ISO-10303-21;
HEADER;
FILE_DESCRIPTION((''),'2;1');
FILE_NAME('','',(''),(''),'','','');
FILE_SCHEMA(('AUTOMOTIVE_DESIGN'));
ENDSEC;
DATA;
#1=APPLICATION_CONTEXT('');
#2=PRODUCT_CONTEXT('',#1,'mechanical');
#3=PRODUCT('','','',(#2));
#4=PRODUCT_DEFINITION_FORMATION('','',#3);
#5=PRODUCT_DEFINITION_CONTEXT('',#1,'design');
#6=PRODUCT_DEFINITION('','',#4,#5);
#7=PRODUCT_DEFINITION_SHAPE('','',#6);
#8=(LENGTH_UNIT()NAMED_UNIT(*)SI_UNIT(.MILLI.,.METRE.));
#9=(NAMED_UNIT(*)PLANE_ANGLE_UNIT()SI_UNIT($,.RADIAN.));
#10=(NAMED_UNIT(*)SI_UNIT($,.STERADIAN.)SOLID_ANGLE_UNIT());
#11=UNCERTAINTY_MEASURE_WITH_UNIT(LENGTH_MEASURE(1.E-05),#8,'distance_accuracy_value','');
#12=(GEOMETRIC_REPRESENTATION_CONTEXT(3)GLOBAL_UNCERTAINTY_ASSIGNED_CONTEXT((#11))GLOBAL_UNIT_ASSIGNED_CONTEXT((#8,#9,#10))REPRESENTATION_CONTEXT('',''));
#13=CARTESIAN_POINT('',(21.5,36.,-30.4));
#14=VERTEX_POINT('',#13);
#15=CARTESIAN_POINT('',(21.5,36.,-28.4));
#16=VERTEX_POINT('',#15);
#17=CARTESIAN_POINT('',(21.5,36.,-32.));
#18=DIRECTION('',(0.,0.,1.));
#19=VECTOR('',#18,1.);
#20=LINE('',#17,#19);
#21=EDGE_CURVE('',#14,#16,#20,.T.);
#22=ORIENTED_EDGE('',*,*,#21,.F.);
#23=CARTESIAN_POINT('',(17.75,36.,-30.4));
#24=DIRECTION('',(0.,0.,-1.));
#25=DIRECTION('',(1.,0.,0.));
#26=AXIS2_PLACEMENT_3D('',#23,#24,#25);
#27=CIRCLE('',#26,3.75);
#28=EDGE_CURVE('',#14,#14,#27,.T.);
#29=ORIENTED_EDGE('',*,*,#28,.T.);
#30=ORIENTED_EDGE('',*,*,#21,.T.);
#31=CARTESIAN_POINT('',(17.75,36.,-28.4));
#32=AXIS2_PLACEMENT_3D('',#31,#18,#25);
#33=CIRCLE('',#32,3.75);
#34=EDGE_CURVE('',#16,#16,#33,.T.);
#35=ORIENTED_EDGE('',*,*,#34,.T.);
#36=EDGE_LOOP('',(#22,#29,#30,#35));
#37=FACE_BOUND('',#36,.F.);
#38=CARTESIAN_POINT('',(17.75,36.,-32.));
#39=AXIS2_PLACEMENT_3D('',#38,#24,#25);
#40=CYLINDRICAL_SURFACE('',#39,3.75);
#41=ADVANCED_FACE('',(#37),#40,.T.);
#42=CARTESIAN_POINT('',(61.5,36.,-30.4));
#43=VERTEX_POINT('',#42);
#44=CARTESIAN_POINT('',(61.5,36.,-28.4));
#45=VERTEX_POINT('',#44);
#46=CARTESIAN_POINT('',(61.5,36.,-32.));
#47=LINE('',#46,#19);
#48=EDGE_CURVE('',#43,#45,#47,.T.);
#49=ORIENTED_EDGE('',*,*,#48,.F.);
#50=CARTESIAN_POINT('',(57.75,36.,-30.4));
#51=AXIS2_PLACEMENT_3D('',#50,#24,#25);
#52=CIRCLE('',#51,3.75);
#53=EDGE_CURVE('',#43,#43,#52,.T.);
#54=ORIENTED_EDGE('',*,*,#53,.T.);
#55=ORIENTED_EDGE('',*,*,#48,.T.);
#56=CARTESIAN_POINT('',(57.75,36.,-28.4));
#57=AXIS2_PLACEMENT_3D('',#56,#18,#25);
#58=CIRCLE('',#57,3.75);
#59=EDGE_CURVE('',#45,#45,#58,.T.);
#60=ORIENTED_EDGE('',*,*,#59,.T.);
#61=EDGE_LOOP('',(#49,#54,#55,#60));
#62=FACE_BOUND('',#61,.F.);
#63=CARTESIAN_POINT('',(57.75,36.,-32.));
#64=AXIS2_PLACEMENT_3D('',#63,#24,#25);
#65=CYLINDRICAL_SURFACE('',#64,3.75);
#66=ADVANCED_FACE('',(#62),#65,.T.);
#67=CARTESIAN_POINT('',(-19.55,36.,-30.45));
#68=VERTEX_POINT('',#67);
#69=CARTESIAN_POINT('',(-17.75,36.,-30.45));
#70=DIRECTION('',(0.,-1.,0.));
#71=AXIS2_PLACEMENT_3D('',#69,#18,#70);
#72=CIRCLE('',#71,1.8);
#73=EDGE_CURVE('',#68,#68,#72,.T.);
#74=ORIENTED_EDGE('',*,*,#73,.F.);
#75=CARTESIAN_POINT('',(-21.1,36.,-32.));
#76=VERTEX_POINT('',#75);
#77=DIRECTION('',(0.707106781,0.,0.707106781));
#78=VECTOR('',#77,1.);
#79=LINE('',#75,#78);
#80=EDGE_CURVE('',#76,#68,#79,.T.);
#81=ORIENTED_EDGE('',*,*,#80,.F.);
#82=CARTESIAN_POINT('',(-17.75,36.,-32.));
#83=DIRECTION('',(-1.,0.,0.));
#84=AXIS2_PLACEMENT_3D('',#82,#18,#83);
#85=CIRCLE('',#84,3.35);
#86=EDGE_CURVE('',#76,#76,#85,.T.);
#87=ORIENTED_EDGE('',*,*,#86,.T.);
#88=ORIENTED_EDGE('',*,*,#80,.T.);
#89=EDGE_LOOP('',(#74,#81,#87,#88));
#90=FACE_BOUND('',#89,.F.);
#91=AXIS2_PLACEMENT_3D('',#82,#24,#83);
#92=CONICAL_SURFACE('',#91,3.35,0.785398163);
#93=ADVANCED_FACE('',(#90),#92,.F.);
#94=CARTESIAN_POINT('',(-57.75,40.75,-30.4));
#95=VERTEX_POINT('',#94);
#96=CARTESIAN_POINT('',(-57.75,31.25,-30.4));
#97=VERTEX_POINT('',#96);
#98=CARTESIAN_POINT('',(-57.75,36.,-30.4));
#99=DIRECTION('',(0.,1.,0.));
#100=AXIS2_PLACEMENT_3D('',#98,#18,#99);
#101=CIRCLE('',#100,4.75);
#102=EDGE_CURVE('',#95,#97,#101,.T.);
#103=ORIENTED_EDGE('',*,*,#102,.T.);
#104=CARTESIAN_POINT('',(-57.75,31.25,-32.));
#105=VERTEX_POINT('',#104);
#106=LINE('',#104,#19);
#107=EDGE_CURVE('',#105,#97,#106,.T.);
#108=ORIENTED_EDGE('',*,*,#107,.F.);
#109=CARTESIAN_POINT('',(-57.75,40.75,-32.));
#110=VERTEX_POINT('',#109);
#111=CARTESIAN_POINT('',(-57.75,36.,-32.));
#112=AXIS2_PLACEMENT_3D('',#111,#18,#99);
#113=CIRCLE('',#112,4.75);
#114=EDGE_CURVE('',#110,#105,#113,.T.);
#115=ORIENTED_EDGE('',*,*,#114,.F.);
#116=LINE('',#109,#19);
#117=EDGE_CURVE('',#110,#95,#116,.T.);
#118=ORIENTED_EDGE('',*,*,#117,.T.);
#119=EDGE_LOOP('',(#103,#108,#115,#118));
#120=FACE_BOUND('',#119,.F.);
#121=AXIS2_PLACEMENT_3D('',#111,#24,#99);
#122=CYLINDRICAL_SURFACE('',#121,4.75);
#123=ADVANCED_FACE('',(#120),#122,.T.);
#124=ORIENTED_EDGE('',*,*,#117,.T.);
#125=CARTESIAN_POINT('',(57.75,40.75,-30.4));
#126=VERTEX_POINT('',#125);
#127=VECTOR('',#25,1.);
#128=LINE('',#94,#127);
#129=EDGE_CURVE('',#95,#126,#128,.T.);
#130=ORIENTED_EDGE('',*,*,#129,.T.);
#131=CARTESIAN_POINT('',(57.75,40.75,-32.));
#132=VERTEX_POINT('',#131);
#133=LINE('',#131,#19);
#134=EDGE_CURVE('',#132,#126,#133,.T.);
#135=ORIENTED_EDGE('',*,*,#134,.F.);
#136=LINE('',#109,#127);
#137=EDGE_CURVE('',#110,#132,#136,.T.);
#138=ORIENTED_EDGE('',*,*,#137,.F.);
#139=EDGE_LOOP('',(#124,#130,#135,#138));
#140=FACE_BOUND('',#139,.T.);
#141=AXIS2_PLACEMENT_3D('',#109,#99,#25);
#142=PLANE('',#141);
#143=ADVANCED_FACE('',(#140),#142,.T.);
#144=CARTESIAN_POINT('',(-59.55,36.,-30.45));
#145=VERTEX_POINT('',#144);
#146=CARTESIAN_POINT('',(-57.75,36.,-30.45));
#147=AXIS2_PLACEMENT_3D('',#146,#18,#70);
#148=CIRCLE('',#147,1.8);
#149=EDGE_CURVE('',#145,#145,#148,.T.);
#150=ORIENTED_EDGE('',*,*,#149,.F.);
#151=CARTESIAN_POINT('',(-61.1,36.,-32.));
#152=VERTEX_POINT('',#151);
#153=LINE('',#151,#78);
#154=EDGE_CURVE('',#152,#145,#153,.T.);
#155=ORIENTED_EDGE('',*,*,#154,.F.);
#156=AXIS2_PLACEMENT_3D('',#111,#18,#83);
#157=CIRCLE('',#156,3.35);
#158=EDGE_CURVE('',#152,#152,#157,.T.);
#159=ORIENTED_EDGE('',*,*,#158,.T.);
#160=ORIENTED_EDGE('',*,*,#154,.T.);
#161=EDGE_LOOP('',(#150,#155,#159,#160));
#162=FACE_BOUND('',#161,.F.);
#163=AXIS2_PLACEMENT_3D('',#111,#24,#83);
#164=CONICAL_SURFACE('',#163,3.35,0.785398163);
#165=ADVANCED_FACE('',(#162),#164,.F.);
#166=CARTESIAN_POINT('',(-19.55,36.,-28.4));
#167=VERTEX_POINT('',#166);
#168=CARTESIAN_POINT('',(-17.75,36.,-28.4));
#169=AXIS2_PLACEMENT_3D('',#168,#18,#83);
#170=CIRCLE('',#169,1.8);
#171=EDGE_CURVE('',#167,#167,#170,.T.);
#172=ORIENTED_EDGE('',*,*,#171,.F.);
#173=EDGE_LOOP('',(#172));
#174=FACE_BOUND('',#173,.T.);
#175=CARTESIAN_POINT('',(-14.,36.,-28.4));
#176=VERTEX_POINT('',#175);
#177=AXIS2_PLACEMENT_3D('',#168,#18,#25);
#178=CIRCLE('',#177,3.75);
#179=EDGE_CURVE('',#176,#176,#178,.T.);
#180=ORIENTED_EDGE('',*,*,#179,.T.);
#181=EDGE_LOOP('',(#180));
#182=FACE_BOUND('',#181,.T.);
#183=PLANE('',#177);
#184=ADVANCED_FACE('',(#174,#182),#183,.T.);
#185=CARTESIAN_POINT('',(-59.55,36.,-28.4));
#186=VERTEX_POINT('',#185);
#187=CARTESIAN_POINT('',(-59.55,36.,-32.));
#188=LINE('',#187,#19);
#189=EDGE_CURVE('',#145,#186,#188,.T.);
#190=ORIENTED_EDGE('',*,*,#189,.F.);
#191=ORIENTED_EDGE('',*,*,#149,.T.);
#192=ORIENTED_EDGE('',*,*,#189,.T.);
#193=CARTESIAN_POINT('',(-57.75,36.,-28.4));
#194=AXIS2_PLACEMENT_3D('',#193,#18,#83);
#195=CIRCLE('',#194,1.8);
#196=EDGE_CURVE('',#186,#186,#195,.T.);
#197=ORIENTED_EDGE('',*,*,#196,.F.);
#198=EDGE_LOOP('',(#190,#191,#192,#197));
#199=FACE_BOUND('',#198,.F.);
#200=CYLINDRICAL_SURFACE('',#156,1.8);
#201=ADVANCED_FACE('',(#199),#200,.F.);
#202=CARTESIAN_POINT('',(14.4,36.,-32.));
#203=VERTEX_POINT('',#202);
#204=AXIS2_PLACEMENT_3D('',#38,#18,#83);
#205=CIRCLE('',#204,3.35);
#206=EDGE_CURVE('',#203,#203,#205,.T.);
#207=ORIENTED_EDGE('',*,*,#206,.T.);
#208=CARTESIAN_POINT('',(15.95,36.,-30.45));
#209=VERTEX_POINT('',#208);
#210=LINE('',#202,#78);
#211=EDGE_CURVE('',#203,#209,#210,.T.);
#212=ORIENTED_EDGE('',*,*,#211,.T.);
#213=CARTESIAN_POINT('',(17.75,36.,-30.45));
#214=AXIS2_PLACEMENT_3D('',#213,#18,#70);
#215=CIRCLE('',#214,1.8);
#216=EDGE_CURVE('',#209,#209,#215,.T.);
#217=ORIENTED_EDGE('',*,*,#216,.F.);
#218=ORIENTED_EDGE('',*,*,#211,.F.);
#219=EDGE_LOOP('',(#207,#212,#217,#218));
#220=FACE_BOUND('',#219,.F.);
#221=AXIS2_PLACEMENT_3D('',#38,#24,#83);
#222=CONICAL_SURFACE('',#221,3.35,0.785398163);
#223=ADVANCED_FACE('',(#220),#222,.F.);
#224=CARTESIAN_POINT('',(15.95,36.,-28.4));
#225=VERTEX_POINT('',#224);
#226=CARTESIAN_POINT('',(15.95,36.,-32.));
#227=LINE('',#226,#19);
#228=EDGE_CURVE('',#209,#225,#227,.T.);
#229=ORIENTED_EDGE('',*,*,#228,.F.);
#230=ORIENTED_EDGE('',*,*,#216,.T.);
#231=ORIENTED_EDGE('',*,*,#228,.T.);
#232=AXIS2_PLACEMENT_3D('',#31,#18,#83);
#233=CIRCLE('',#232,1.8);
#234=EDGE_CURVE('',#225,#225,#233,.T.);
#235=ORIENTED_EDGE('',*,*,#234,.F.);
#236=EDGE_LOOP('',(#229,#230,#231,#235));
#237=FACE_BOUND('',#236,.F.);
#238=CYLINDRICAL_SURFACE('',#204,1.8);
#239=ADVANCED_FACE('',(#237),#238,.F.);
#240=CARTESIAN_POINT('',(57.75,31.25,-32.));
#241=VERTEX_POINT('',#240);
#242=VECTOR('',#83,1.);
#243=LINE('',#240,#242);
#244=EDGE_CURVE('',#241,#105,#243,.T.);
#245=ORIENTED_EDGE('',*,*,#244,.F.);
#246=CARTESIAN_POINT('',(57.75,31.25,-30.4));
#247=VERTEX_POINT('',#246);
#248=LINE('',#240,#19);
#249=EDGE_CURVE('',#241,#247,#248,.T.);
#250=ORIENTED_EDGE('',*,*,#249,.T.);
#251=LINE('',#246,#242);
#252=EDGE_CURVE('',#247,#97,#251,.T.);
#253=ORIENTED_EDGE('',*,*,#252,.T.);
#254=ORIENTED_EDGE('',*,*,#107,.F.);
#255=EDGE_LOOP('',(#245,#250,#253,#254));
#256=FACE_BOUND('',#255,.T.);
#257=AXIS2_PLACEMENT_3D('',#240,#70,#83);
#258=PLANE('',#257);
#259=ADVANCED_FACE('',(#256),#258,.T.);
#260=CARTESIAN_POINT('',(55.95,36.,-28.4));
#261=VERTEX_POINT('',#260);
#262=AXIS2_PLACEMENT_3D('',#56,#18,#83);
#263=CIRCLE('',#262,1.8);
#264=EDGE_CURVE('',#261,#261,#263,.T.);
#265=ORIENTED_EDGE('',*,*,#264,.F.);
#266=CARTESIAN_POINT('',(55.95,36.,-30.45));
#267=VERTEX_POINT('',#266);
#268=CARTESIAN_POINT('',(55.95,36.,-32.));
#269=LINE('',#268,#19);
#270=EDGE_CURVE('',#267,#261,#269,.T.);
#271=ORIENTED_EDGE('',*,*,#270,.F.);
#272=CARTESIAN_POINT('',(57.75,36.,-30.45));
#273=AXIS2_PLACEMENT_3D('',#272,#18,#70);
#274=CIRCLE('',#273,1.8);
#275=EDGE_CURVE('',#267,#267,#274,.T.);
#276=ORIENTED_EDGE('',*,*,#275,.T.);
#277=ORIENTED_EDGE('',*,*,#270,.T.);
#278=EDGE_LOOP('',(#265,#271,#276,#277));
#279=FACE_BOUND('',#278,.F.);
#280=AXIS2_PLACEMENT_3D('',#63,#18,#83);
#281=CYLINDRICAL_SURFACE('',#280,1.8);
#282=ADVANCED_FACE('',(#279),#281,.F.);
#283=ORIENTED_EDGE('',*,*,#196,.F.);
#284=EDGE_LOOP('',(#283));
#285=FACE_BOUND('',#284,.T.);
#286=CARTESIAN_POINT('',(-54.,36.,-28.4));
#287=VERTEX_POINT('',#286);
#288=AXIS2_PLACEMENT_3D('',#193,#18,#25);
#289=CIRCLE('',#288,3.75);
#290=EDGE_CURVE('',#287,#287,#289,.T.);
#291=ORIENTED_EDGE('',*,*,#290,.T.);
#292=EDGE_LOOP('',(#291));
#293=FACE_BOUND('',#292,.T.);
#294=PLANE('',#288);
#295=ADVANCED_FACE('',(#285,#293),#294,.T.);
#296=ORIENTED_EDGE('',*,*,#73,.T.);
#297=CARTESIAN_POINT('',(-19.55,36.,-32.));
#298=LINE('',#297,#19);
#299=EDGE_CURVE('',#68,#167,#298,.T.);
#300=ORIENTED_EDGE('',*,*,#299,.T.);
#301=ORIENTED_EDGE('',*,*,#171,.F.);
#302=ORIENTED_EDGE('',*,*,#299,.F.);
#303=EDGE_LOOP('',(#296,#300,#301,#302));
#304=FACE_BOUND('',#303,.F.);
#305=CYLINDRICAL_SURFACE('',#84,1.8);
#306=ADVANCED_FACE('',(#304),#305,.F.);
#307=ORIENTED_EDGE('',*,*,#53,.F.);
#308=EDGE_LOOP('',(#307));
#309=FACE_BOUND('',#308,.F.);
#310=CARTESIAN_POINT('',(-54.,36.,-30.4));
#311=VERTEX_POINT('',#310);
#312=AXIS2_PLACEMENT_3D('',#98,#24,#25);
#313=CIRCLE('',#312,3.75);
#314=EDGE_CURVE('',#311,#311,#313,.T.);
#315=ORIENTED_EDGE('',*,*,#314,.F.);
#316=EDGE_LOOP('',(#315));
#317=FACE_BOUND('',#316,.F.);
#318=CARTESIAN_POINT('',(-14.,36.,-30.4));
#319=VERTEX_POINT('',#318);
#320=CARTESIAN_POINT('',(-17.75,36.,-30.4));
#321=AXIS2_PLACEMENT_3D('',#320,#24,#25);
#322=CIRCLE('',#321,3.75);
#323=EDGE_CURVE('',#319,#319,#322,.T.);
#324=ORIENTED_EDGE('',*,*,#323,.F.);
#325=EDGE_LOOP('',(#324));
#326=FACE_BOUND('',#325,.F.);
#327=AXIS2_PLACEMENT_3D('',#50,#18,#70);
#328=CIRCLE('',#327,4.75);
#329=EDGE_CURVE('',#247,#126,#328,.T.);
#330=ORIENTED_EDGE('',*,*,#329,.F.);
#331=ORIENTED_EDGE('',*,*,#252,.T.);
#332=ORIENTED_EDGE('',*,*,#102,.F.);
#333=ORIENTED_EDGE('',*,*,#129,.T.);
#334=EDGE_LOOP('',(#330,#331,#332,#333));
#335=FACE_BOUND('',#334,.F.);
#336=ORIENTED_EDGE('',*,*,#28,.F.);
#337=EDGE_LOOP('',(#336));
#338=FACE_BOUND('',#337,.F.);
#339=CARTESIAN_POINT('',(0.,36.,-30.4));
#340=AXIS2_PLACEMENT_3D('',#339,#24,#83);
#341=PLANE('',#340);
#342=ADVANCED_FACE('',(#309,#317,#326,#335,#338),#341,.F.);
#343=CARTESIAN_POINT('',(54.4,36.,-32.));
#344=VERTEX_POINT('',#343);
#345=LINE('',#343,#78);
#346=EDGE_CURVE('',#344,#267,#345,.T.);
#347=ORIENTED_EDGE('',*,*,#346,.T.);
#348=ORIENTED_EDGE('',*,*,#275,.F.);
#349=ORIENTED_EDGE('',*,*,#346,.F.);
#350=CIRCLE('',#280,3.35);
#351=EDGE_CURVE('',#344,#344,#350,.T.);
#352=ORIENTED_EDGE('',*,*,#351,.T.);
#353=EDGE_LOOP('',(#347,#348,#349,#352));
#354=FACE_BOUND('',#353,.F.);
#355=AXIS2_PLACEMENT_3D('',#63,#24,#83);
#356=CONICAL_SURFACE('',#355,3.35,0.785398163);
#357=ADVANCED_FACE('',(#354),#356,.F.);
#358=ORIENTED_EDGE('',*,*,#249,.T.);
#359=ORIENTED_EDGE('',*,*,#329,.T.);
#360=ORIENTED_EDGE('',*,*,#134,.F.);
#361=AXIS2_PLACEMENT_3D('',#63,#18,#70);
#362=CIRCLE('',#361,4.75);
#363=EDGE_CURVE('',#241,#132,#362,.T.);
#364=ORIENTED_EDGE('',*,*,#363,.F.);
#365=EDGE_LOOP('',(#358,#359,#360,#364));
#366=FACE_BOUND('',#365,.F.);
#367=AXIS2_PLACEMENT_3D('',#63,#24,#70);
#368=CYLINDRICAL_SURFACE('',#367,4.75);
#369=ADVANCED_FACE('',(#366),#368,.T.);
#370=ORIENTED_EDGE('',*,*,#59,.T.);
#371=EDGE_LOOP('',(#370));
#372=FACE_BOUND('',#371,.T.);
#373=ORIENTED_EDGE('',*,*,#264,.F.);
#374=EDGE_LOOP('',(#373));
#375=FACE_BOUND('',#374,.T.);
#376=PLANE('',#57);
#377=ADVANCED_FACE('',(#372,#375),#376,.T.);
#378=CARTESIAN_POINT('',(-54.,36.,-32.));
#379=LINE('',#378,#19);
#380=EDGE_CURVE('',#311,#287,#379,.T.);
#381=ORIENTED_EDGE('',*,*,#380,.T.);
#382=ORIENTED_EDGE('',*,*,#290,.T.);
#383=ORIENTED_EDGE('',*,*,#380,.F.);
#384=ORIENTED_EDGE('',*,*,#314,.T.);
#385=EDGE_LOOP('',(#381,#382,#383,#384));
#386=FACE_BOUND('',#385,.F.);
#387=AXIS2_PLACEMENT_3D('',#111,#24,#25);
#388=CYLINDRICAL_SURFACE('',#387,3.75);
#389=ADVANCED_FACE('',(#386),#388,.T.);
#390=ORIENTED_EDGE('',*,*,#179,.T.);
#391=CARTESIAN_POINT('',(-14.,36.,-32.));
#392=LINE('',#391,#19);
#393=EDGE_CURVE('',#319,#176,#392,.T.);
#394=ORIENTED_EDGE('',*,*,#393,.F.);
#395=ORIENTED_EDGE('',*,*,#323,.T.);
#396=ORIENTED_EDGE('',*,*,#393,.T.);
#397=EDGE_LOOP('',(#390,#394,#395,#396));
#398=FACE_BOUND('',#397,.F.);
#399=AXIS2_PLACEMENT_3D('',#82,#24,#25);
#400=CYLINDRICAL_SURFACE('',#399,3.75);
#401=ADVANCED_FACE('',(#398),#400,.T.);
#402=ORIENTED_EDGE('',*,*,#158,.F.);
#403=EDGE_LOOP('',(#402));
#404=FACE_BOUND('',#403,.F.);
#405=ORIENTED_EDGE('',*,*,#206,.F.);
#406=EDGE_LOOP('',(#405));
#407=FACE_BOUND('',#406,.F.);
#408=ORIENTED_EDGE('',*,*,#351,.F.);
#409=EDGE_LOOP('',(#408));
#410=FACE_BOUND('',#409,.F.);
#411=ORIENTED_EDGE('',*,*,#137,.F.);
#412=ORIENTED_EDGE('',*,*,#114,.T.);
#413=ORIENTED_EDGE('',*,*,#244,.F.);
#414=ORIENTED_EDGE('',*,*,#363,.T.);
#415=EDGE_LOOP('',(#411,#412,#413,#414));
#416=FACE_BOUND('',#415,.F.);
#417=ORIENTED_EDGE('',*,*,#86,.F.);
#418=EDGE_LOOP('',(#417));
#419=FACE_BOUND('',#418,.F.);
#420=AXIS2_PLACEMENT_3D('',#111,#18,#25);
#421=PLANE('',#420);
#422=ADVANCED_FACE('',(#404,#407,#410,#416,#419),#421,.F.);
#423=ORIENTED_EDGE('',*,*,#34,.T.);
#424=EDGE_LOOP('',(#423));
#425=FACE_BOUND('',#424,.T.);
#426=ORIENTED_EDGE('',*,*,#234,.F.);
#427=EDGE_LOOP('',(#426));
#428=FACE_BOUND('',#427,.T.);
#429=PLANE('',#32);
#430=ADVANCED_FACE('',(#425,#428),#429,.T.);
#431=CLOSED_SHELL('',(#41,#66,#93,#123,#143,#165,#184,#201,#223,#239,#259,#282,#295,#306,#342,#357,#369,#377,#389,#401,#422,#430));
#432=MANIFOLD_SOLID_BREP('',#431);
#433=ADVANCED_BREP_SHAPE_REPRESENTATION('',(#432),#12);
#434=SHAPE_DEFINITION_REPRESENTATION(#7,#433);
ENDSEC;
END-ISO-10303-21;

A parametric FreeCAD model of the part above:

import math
import FreeCAD as App
import Part
import Sketcher
from FreeCAD import Vector
Q = App.Units.Quantity

doc = App.newDocument("Part")
body = doc.addObject("PartDesign::Body", "Body")

sketch1 = body.newObject("Sketcher::SketchObject", "Sketch")
sketch1.AttachmentSupport = (doc.getObject("XY_Plane"), [""])
sketch1.MapMode = "FlatFace"
sketch1.addGeometry([
    Part.LineSegment(Vector(57.75, 4.75, 0), Vector(-57.75, 4.75, 0)),
    Part.ArcOfCircle(Part.Circle(Vector(-57.75, 0, 0), Vector(0, 0, 1), 4.75), math.radians(90), math.radians(270)),
    Part.LineSegment(Vector(-57.75, -4.75, 0), Vector(57.75, -4.75, 0)),
    Part.ArcOfCircle(Part.Circle(Vector(57.75, 0, 0), Vector(0, 0, 1), 4.75), math.radians(-90), math.radians(90)),
], False)
sketch1.addConstraint([
    Sketcher.Constraint("Tangent", 0, 2, 1, 1),
    Sketcher.Constraint("Tangent", 1, 2, 2, 1),
    Sketcher.Constraint("Tangent", 2, 2, 3, 1),
    Sketcher.Constraint("Tangent", 3, 2, 0, 1),
    Sketcher.Constraint("Horizontal", 0),
    Sketcher.Constraint("Horizontal", 2),
    Sketcher.Constraint("Symmetric", 1, 3, 3, 3, -1, 1),
    Sketcher.Constraint("Radius", 1, Q("4.75 mm")),
    Sketcher.Constraint("DistanceX", 0, 2, 0, 1, Q("115.5 mm")),
])
pad1 = body.newObject("PartDesign::Pad", "Pad")
pad1.Profile = sketch1
pad1.Length = 1.6

sketch2 = body.newObject("Sketcher::SketchObject", "Sketch001")
sketch2.AttachmentSupport = (doc.getObject("XY_Plane"), [""])
sketch2.MapMode = "FlatFace"
sketch2.addGeometry([
    Part.Circle(Vector(-57.75, 0, 0), Vector(0, 0, 1), 3.75),
    Part.Circle(Vector(-17.75, 0, 0), Vector(0, 0, 1), 3.75),
    Part.Circle(Vector(17.75, 0, 0), Vector(0, 0, 1), 3.75),
    Part.Circle(Vector(57.75, 0, 0), Vector(0, 0, 1), 3.75),
], False)
sketch2.addConstraint([
    Sketcher.Constraint("Equal", 0, 1),
    Sketcher.Constraint("Equal", 1, 2),
    Sketcher.Constraint("Equal", 2, 3),
    Sketcher.Constraint("Symmetric", 1, 3, 2, 3, -1, 1),
    Sketcher.Constraint("Symmetric", 0, 3, 3, 3, -1, 1),
    Sketcher.Constraint("PointOnObject", 0, 3, -1),
    Sketcher.Constraint("PointOnObject", 1, 3, -1),
    Sketcher.Constraint("Diameter", 0, Q("7.5 mm")),
    Sketcher.Constraint("DistanceX", 0, 3, 1, 3, Q("40 mm")),
    Sketcher.Constraint("DistanceX", 1, 3, 2, 3, Q("35.5 mm")),
])
pad2 = body.newObject("PartDesign::Pad", "Pad001")
pad2.Profile = sketch2
pad2.Length = 3.6

sketch3 = body.newObject("Sketcher::SketchObject", "Sketch002")
sketch3.AttachmentSupport = (doc.getObject("XY_Plane"), [""])
sketch3.MapMode = "FlatFace"
sketch3.addGeometry([
    Part.Circle(Vector(-57.75, 0, 0), Vector(0, 0, 1), 1.8),
    Part.Circle(Vector(-17.75, 0, 0), Vector(0, 0, 1), 1.8),
    Part.Circle(Vector(17.75, 0, 0), Vector(0, 0, 1), 1.8),
    Part.Circle(Vector(57.75, 0, 0), Vector(0, 0, 1), 1.8),
], False)
sketch3.addConstraint([
    Sketcher.Constraint("Equal", 0, 1),
    Sketcher.Constraint("Equal", 1, 2),
    Sketcher.Constraint("Equal", 2, 3),
    Sketcher.Constraint("Symmetric", 1, 3, 2, 3, -1, 1),
    Sketcher.Constraint("Symmetric", 0, 3, 3, 3, -1, 1),
    Sketcher.Constraint("PointOnObject", 0, 3, -1),
    Sketcher.Constraint("PointOnObject", 1, 3, -1),
    Sketcher.Constraint("Diameter", 0, Q("3.6 mm")),
    Sketcher.Constraint("DistanceX", 0, 3, 1, 3, Q("40 mm")),
    Sketcher.Constraint("DistanceX", 1, 3, 2, 3, Q("35.5 mm")),
])
doc.recompute()
hole = body.newObject("PartDesign::Hole", "Hole")
hole.Profile = sketch3
hole.ThreadType = "None"
hole.Diameter = 3.6
hole.DepthType = "Dimension"
hole.Depth = 25
hole.DrillPoint = "Flat"
hole.HoleCutType = "Countersink"
hole.HoleCutDiameter = 6.7
hole.HoleCutCountersinkAngle = 90
hole.Reversed = True
body2 = doc.addObject("PartDesign::Body", "Body001")
doc.recompute()

body.Placement = App.Placement(Vector(0, 36, -32), App.Rotation(Vector(0, 0, 1), 0))
boolean = body2.newObject("PartDesign::Boolean", "Boolean")
boolean.Type = "Fuse"
boolean.addObjects([body])

doc.recompute()
